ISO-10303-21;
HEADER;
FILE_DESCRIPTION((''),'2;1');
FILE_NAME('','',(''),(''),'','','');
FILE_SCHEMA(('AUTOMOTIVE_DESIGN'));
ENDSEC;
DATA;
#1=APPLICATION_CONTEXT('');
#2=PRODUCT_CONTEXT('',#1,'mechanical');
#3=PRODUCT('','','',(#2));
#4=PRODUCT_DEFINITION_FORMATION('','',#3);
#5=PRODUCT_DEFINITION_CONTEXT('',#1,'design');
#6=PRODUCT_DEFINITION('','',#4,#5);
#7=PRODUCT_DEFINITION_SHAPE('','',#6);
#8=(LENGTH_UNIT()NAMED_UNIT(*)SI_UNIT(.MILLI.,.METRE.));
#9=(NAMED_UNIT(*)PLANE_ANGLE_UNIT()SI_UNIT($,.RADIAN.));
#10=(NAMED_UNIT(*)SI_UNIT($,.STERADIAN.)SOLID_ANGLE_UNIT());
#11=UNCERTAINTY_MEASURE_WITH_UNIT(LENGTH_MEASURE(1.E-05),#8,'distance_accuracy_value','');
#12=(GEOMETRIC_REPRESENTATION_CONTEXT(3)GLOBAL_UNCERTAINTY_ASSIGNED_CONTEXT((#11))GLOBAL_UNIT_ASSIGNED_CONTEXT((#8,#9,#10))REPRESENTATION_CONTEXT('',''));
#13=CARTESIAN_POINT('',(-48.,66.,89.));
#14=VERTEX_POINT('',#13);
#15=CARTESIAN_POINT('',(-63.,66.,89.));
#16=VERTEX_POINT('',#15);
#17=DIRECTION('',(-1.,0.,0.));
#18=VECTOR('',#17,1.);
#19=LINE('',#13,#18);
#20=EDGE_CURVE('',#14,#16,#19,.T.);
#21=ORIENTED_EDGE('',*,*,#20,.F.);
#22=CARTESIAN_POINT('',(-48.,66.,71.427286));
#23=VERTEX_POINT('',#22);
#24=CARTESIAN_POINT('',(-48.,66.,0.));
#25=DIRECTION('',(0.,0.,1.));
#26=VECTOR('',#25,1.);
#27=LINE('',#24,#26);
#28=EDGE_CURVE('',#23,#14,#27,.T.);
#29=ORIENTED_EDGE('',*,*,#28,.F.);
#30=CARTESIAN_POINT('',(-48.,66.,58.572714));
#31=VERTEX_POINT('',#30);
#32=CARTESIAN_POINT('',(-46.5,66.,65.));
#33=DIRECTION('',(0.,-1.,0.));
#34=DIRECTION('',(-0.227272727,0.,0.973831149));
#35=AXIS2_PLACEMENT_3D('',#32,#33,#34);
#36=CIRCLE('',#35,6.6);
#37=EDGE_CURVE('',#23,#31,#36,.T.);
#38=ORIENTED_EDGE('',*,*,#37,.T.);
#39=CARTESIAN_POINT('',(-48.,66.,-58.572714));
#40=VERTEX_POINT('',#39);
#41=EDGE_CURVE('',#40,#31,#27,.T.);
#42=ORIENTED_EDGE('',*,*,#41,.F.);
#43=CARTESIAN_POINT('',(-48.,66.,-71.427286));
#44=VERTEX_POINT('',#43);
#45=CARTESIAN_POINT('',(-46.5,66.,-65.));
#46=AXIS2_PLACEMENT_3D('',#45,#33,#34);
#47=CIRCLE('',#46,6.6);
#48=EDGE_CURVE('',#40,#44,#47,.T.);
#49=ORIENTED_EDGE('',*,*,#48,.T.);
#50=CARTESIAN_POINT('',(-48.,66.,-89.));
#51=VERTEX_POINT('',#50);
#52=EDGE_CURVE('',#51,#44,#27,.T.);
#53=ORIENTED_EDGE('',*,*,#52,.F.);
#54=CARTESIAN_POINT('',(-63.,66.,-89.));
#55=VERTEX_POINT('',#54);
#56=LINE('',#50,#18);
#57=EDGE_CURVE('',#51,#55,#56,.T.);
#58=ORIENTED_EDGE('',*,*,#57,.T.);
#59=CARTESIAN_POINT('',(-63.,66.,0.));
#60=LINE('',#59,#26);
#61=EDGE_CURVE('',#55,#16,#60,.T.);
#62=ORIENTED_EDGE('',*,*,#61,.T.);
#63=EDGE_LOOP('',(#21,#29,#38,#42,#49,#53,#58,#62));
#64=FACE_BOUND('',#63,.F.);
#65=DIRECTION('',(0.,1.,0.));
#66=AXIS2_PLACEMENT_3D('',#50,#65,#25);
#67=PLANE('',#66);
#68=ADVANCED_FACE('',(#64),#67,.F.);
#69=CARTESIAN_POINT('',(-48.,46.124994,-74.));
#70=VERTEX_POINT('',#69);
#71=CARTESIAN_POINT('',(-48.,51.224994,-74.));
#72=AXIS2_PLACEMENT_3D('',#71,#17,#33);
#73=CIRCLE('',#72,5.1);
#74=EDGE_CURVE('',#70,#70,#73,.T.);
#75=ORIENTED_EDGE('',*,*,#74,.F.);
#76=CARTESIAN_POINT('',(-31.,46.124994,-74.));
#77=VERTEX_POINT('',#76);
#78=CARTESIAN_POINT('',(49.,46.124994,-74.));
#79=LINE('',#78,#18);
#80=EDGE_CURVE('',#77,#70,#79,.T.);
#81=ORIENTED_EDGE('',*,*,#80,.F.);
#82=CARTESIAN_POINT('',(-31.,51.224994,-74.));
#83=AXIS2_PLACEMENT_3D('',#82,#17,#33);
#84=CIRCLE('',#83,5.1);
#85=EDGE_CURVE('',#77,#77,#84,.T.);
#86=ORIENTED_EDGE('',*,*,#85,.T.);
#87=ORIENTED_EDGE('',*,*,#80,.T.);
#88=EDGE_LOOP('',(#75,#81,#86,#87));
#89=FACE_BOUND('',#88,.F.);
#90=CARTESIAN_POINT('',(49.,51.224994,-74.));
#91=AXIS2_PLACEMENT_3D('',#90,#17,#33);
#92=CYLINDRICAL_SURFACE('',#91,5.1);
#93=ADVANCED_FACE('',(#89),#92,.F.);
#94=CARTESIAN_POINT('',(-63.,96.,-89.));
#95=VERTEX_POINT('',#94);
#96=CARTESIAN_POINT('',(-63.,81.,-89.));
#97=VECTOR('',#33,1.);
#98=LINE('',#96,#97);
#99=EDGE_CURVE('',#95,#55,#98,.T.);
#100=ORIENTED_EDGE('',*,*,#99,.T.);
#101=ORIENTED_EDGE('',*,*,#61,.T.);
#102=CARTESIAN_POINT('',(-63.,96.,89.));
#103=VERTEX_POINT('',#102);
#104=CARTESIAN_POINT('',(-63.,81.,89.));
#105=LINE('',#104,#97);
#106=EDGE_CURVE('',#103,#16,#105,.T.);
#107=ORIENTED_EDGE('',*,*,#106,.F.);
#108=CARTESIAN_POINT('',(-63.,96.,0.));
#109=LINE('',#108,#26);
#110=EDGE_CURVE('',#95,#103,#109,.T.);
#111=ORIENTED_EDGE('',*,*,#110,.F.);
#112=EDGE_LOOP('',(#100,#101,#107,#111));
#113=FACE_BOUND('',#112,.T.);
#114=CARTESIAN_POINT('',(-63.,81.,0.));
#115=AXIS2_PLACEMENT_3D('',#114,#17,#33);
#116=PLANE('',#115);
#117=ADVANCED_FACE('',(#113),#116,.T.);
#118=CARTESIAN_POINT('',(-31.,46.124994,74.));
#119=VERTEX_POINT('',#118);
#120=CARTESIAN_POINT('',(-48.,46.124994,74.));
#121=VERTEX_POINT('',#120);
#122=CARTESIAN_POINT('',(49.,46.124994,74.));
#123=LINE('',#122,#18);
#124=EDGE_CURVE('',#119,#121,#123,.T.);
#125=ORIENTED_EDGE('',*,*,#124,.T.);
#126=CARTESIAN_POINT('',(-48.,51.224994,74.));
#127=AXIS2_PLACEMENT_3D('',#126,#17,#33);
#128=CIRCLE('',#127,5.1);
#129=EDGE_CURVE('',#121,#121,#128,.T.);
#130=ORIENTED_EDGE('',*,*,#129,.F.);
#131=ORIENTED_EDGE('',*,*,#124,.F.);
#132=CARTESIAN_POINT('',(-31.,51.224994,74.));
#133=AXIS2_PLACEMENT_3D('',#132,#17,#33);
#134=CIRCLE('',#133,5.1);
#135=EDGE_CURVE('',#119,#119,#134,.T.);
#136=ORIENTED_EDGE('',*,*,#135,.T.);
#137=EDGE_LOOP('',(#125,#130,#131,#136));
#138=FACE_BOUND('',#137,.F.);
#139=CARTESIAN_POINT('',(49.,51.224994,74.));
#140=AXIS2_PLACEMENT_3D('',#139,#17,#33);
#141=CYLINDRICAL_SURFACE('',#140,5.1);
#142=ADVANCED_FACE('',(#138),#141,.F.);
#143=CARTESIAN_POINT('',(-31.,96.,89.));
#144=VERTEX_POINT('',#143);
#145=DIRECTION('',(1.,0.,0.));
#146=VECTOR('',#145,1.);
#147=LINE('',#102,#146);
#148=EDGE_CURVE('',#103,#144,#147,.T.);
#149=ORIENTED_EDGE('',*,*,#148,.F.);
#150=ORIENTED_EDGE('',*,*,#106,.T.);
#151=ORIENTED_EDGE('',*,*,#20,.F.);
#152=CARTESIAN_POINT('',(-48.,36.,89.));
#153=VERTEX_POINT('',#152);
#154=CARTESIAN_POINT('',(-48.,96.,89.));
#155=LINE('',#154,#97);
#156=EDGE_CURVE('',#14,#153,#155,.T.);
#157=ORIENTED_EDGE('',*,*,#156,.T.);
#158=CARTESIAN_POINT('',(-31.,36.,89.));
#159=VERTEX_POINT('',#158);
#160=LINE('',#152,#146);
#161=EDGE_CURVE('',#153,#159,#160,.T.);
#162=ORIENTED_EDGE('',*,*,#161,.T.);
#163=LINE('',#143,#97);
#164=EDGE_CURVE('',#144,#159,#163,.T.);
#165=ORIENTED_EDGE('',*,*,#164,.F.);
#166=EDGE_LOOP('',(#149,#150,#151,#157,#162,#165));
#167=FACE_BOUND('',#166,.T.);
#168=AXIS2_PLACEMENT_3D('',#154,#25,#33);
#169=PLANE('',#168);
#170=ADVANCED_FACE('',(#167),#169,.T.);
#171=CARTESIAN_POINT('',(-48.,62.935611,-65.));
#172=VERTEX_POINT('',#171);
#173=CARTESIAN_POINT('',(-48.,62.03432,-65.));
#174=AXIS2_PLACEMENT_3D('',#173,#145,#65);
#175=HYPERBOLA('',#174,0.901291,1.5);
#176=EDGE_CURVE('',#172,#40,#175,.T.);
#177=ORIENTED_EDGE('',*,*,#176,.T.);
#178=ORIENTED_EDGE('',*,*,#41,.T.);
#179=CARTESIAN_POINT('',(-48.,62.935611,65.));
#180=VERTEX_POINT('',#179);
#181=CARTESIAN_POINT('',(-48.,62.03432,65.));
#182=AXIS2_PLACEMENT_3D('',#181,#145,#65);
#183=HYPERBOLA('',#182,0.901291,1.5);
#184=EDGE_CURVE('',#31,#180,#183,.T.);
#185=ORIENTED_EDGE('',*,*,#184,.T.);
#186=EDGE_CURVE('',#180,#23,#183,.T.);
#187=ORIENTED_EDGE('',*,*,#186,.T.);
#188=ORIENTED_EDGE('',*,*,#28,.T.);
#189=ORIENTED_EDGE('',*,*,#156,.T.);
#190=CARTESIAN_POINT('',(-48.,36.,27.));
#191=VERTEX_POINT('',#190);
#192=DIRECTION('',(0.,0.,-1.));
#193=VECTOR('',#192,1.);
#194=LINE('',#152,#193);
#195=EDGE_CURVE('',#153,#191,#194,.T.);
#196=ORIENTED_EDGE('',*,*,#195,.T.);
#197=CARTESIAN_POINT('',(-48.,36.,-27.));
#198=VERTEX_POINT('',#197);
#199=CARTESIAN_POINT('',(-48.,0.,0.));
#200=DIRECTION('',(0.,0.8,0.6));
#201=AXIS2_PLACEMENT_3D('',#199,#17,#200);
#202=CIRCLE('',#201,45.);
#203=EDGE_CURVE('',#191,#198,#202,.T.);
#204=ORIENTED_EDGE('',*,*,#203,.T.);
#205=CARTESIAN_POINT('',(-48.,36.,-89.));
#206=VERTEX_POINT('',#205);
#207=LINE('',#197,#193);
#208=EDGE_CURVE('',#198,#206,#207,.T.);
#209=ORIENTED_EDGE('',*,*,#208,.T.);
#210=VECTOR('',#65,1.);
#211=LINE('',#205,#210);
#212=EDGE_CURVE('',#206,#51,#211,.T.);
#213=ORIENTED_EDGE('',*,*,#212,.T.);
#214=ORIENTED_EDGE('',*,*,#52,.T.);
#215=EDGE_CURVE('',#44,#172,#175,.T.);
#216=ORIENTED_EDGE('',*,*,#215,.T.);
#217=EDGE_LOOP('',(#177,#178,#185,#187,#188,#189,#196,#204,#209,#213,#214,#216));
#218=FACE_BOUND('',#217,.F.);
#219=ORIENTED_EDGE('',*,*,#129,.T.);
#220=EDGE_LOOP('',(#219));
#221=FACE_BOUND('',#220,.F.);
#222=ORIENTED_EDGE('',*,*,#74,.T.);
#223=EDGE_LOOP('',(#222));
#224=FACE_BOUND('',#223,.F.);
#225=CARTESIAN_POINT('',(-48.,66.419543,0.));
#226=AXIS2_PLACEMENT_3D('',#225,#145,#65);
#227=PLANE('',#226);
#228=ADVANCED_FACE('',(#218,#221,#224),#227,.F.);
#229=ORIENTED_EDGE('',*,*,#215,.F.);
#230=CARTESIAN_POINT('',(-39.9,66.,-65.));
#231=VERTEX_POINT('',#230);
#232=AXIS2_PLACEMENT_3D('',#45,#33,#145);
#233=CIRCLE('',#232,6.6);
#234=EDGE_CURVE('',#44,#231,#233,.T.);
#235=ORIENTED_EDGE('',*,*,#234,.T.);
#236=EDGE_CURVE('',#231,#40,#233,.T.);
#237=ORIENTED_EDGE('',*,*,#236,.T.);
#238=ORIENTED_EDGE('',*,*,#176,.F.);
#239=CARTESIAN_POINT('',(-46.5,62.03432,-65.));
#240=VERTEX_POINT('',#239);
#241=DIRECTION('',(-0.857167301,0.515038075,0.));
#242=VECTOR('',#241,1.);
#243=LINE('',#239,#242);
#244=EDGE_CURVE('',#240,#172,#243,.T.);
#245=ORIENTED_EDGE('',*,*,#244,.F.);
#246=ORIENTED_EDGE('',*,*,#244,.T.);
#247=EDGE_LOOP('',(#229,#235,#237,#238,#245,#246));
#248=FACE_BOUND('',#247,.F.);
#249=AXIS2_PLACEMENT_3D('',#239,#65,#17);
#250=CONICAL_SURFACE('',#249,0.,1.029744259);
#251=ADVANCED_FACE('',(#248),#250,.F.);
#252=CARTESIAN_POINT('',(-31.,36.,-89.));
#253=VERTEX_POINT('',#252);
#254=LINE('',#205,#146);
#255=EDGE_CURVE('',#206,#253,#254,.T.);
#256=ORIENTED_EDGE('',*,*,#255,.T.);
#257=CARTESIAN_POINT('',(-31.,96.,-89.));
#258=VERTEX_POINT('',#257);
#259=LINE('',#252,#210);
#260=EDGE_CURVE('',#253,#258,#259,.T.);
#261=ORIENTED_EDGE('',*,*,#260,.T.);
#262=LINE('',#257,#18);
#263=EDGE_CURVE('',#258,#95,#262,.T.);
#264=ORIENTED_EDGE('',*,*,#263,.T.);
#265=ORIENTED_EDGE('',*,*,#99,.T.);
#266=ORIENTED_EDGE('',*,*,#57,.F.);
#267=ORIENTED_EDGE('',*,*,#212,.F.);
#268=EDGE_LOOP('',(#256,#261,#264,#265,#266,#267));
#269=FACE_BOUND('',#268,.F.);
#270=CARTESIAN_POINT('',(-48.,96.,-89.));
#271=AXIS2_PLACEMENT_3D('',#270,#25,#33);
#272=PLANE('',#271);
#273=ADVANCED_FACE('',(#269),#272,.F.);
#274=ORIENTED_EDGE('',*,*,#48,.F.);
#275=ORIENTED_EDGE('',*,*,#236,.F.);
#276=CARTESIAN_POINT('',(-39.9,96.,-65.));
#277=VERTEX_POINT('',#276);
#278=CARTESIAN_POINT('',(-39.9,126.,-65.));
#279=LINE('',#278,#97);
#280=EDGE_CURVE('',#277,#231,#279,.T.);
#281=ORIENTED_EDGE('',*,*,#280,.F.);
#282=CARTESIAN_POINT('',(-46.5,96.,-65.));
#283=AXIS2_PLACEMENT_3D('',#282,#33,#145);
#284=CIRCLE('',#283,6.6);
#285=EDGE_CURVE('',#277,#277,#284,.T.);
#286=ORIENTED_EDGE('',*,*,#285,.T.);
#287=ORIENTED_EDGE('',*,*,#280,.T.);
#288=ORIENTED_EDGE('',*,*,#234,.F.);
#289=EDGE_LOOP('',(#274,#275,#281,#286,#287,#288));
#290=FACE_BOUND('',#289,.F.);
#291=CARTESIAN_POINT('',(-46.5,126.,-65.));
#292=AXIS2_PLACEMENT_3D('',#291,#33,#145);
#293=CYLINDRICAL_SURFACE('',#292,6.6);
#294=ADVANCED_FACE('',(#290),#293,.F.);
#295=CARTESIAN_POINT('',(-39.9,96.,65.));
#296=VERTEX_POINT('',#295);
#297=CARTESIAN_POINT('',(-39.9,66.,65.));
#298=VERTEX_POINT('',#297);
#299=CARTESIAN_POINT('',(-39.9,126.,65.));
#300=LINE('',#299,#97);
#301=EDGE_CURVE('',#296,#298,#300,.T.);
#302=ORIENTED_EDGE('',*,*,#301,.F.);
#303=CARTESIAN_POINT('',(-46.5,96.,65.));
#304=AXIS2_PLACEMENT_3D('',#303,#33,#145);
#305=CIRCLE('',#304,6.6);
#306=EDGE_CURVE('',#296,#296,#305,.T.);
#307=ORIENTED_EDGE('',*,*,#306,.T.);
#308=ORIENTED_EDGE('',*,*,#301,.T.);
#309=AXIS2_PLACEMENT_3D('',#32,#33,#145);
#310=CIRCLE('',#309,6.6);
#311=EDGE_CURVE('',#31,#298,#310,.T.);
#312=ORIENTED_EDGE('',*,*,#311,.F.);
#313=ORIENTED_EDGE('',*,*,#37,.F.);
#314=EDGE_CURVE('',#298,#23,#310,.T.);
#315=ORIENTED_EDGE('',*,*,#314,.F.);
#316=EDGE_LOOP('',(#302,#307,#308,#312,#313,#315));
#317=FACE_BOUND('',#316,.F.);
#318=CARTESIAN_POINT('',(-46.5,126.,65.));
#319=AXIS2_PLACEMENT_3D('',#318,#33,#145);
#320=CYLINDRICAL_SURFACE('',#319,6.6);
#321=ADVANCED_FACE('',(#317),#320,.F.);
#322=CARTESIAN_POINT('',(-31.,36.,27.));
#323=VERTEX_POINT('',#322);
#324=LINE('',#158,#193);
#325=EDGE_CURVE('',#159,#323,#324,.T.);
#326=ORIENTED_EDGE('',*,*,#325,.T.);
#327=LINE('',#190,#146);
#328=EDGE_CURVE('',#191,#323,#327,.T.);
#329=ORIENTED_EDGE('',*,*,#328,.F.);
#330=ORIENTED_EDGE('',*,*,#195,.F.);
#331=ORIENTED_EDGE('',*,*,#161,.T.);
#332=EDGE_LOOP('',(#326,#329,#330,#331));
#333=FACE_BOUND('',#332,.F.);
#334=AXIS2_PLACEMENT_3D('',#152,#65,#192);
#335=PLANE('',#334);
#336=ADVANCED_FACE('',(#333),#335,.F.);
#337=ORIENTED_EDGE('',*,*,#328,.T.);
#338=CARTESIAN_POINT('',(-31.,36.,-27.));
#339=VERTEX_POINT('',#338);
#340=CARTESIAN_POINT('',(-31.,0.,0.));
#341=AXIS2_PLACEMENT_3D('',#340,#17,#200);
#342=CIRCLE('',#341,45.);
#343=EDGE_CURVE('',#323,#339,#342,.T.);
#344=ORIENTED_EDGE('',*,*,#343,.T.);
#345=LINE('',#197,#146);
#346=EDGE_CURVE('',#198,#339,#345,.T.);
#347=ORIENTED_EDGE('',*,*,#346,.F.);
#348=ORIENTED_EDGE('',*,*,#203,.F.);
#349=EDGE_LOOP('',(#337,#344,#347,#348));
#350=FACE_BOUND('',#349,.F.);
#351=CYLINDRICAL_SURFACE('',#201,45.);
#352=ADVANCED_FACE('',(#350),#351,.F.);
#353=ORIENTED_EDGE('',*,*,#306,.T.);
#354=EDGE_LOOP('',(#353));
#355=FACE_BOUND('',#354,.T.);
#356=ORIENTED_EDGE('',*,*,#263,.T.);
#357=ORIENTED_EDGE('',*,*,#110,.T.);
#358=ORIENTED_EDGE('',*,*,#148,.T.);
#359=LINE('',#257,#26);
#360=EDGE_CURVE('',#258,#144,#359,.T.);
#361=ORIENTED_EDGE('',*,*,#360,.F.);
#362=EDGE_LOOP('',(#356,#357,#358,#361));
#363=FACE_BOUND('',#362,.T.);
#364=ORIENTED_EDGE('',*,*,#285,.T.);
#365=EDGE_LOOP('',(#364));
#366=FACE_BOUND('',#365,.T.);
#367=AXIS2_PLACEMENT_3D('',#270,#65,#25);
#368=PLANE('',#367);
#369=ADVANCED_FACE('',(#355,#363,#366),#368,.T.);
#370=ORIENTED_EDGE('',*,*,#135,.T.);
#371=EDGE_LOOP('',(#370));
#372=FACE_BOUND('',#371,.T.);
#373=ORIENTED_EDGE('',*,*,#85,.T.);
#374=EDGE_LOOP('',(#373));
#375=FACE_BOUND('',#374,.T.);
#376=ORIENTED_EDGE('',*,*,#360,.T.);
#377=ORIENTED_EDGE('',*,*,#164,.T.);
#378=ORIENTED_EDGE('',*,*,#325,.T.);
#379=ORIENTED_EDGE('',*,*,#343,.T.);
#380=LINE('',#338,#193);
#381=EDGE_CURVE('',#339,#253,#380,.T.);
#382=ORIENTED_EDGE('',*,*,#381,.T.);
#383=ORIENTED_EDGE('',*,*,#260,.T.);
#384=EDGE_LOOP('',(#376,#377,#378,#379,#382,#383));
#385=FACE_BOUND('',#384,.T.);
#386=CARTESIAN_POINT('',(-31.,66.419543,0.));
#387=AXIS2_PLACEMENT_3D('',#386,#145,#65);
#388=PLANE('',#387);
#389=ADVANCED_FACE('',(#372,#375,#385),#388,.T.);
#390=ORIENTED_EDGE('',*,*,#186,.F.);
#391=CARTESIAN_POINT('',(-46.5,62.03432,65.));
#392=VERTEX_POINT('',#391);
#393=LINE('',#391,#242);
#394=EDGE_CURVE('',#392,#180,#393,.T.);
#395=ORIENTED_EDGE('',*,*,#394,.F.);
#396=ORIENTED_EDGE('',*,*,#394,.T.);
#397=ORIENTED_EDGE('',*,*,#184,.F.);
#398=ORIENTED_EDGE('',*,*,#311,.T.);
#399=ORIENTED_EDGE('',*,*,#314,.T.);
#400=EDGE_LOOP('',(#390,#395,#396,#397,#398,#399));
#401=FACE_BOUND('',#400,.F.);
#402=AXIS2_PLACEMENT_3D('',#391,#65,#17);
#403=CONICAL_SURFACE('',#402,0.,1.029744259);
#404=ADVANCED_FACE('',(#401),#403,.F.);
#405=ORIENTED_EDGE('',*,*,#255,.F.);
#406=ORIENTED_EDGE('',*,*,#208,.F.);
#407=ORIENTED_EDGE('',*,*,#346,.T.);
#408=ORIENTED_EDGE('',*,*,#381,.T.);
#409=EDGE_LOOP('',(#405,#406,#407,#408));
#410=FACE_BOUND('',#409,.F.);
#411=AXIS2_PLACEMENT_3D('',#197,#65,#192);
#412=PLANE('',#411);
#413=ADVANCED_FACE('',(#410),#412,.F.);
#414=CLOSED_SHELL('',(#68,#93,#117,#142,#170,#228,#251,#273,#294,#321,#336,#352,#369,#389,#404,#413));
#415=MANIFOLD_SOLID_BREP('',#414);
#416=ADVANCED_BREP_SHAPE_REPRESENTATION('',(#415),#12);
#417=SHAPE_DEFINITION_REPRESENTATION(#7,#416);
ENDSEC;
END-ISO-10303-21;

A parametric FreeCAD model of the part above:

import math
import FreeCAD as App
import Part
import Sketcher
from FreeCAD import Vector

doc = App.newDocument("Part")
body = doc.addObject("PartDesign::Body", "Body")

# Sketch on YZ plane
sketch1 = body.newObject("Sketcher::SketchObject", "Sketch")
sketch1.AttachmentSupport = (doc.getObject("YZ_Plane"), [""])
sketch1.MapMode = "FlatFace"
sketch1.AttachmentOffset = App.Placement(Vector(0, 0, -48), App.Rotation())
sketch1.addGeometry(Part.LineSegment(Vector(36, 89, 0), Vector(36, 27, 0)), False)
sketch1.addGeometry(Part.ArcOfCircle(Part.Circle(Vector(0, 0, 0), Vector(0, 0, 1), 45), math.radians(-37), math.radians(37)), False)
sketch1.addGeometry(Part.LineSegment(Vector(36, -27, 0), Vector(36, -89, 0)), False)
sketch1.addGeometry(Part.LineSegment(Vector(36, -89, 0), Vector(96, -89, 0)), False)
sketch1.addGeometry(Part.LineSegment(Vector(96, -89, 0), Vector(96, 89, 0)), False)
sketch1.addGeometry(Part.LineSegment(Vector(96, 89, 0), Vector(36, 89, 0)), False)
sketch1.addConstraint(Sketcher.Constraint("Coincident", 0, 2, 1, 2))
sketch1.addConstraint(Sketcher.Constraint("Coincident", 1, 1, 2, 1))
sketch1.addConstraint(Sketcher.Constraint("Coincident", 2, 2, 3, 1))
sketch1.addConstraint(Sketcher.Constraint("Coincident", 3, 2, 4, 1))
sketch1.addConstraint(Sketcher.Constraint("Coincident", 4, 2, 5, 1))
sketch1.addConstraint(Sketcher.Constraint("Coincident", 5, 2, 0, 1))
sketch1.addConstraint(Sketcher.Constraint("Vertical", 0))
sketch1.addConstraint(Sketcher.Constraint("Vertical", 2))
sketch1.addConstraint(Sketcher.Constraint("Horizontal", 3))
sketch1.addConstraint(Sketcher.Constraint("Vertical", 4))
sketch1.addConstraint(Sketcher.Constraint("Horizontal", 5))
sketch1.addConstraint(Sketcher.Constraint("Coincident", 1, 3, -1, 1))
sketch1.addConstraint(Sketcher.Constraint("Symmetric", 2, 2, 5, 2, -1))
sketch1.addConstraint(Sketcher.Constraint("Radius", 1, 45.0))
sketch1.addConstraint(Sketcher.Constraint("DistanceX", 3, 1, 3, 2, 60.0))
sketch1.addConstraint(Sketcher.Constraint("DistanceY", 0, 2, 0, 1, 62.0))
sketch1.addConstraint(Sketcher.Constraint("DistanceY", 4, 1, 4, 2, 178.0))
pad1 = body.newObject("PartDesign::Pad", "Pad")
pad1.Profile = sketch1
pad1.Length = 17

# Sketch on YZ plane
sketch2 = body.newObject("Sketcher::SketchObject", "Sketch001")
sketch2.AttachmentSupport = (doc.getObject("YZ_Plane"), [""])
sketch2.MapMode = "FlatFace"
sketch2.AttachmentOffset = App.Placement(Vector(0, 0, -48), App.Rotation())
sketch2.addGeometry(Part.LineSegment(Vector(96, 89, 0), Vector(96, -89, 0)), False)
sketch2.addGeometry(Part.LineSegment(Vector(96, -89, 0), Vector(66, -89, 0)), False)
sketch2.addGeometry(Part.LineSegment(Vector(66, -89, 0), Vector(66, 89, 0)), False)
sketch2.addGeometry(Part.LineSegment(Vector(66, 89, 0), Vector(96, 89, 0)), False)
sketch2.addConstraint(Sketcher.Constraint("Coincident", 0, 2, 1, 1))
sketch2.addConstraint(Sketcher.Constraint("Coincident", 1, 2, 2, 1))
sketch2.addConstraint(Sketcher.Constraint("Coincident", 2, 2, 3, 1))
sketch2.addConstraint(Sketcher.Constraint("Coincident", 3, 2, 0, 1))
sketch2.addConstraint(Sketcher.Constraint("Vertical", 0))
sketch2.addConstraint(Sketcher.Constraint("Horizontal", 1))
sketch2.addConstraint(Sketcher.Constraint("Vertical", 2))
sketch2.addConstraint(Sketcher.Constraint("Horizontal", 3))
sketch2.addConstraint(Sketcher.Constraint("DistanceX", 1, 2, 1, 1, 30.0))
sketch2.addConstraint(Sketcher.Constraint("DistanceY", 0, 2, 0, 1, 178.0))
sketch2.addConstraint(Sketcher.Constraint("DistanceX", -1, 1, 0, 2, 96.0))
sketch2.addConstraint(Sketcher.Constraint("DistanceY", 0, 2, -1, 1, 89.0))
pad2 = body.newObject("PartDesign::Pad", "Pad001")
pad2.Profile = sketch2
pad2.Length = 15
pad2.Reversed = True

# Sketch on YZ plane
sketch3 = body.newObject("Sketcher::SketchObject", "Sketch002")
sketch3.AttachmentSupport = (doc.getObject("YZ_Plane"), [""])
sketch3.MapMode = "FlatFace"
sketch3.AttachmentOffset = App.Placement(Vector(0, 0, -31), App.Rotation())
sketch3.addGeometry(Part.Circle(Vector(51, 74, 0), Vector(0, 0, 1), 5), False)
sketch3.addGeometry(Part.Circle(Vector(51, -74, 0), Vector(0, 0, 1), 5), False)
sketch3.addConstraint(Sketcher.Constraint("Equal", 0, 1))
sketch3.addConstraint(Sketcher.Constraint("Symmetric", 0, 3, 1, 3, -1))
sketch3.addConstraint(Sketcher.Constraint("Diameter", 0, 10.2))
sketch3.addConstraint(Sketcher.Constraint("DistanceY", -1, 1, 0, 3, 74.0))
sketch3.addConstraint(Sketcher.Constraint("DistanceX", -1, 1, 0, 3, 51.224994))
doc.recompute()
hole = body.newObject("PartDesign::Hole", "Hole")
hole.Profile = sketch3
hole.ThreadType = "None"
hole.Diameter = 10.2
hole.DepthType = "Dimension"
hole.Depth = 80
hole.DrillPoint = "Angled"
hole.DrillPointAngle = 118

# Sketch on XZ plane
sketch4 = body.newObject("Sketcher::SketchObject", "Sketch003")
sketch4.AttachmentSupport = (doc.getObject("XZ_Plane"), [""])
sketch4.MapMode = "FlatFace"
sketch4.AttachmentOffset = App.Placement(Vector(0, 0, -96), App.Rotation())
sketch4.addGeometry(Part.Circle(Vector(-46, 65, 0), Vector(0, 0, 1), 7), False)
sketch4.addGeometry(Part.Circle(Vector(-46, -65, 0), Vector(0, 0, 1), 7), False)
sketch4.addConstraint(Sketcher.Constraint("Equal", 0, 1))
sketch4.addConstraint(Sketcher.Constraint("Symmetric", 0, 3, 1, 3, -1))
sketch4.addConstraint(Sketcher.Constraint("Diameter", 0, 13.2))
sketch4.addConstraint(Sketcher.Constraint("DistanceY", -1, 1, 0, 3, 65.0))
sketch4.addConstraint(Sketcher.Constraint("DistanceX", 0, 3, -1, 1, 46.5))
doc.recompute()
hole2 = body.newObject("PartDesign::Hole", "Hole001")
hole2.Profile = sketch4
hole2.ThreadType = "None"
hole2.Diameter = 13.2
hole2.DepthType = "Dimension"
hole2.Depth = 30
hole2.DrillPoint = "Angled"
hole2.DrillPointAngle = 118
hole2.Reversed = True

doc.recompute()
